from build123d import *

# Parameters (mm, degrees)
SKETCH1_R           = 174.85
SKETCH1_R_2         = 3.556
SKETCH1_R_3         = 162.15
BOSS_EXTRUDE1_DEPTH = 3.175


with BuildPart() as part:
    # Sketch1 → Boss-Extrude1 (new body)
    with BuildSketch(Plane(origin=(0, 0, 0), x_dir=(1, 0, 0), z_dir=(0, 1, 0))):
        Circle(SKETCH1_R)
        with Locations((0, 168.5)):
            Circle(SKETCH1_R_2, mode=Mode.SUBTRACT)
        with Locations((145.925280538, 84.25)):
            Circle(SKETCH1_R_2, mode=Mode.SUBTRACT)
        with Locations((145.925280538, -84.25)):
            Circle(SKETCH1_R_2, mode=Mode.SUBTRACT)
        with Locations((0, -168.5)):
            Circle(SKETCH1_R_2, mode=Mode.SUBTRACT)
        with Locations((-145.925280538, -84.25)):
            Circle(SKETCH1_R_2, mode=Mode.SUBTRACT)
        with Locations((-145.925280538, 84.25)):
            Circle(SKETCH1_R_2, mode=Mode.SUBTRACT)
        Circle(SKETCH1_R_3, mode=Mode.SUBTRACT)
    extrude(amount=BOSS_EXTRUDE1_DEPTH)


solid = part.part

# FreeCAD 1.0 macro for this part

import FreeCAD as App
import Part
import Sketcher

V = App.Vector
Q = App.Units.Quantity

doc = App.newDocument("Part")
params = doc.addObject("Spreadsheet::Sheet", "Params")
for row, (alias, value) in enumerate([
    ("sketch1_diameter", "349.7 mm"),
    ("sketch1_diameter2", "324.3 mm"),
    ("pad1_length", "3.175 mm"),
], start=1):
    params.set(f"A{row}", alias)
    params.set(f"B{row}", "=" + value)
    params.setAlias(f"B{row}", alias)

body = doc.addObject("PartDesign::Body", "Body")

# Sketch on XZ plane
sketch1 = doc.addObject("Sketcher::SketchObject", "Sketch")
body.addObject(sketch1)
sketch1.AttachmentSupport = (doc.XZ_Plane, [""])
sketch1.MapMode = "FlatFace"
sketch1.addGeometry([
    Part.Circle(V(0, 0, 0), V(0, 0, 1), 174.8),  # 0
    Part.Circle(V(-145.9, 84.2, 0), V(0, 0, 1), 3.6),  # 1
    Part.Circle(V(0, 168.5, 0), V(0, 0, 1), 3.6),  # 2
    Part.Circle(V(0, 0, 0), V(0, 0, 1), 162.2),  # 3
    Part.Circle(V(145.9, 84.2, 0), V(0, 0, 1), 3.6),  # 4
    Part.Circle(V(-145.9, -84.2, 0), V(0, 0, 1), 3.6),  # 5
    Part.Circle(V(145.9, -84.2, 0), V(0, 0, 1), 3.6),  # 6
    Part.Circle(V(0, -168.5, 0), V(0, 0, 1), 3.6),  # 7
], False)
sketch1.addConstraint([
    Sketcher.Constraint("Coincident", 0, 3, -1, 1),
    Sketcher.Constraint("Coincident", 3, 3, -1, 1),
    Sketcher.Constraint("Equal", 1, 2),
    Sketcher.Constraint("Equal", 2, 4),
    Sketcher.Constraint("Equal", 4, 5),
    Sketcher.Constraint("Equal", 5, 6),
    Sketcher.Constraint("Equal", 6, 7),
    Sketcher.Constraint("Symmetric", 4, 3, 5, 3, -1, 1),
    Sketcher.Constraint("Symmetric", 1, 3, 6, 3, -1, 1),
    Sketcher.Constraint("Symmetric", 2, 3, 7, 3, -1, 1),
    Sketcher.Constraint("Symmetric", 1, 3, 4, 3, -2),
    Sketcher.Constraint("PointOnObject", 2, 3, -2),
    Sketcher.Constraint("Diameter", 0, Q("349.7 mm")),
    Sketcher.Constraint("Diameter", 3, Q("324.3 mm")),
    Sketcher.Constraint("Diameter", 1, Q("7.112 mm")),
    Sketcher.Constraint("DistanceY", -1, 1, 2, 3, Q("168.5 mm")),
    Sketcher.Constraint("DistanceY", 5, 3, 1, 3, Q("168.5 mm")),
    Sketcher.Constraint("DistanceX", 1, 3, -1, 1, Q("145.925281 mm")),
])
sketch1.setExpression("Constraints[12]", "Params.sketch1_diameter")
sketch1.setExpression("Constraints[13]", "Params.sketch1_diameter2")
pad1 = doc.addObject("PartDesign::Pad", "Pad")
body.addObject(pad1)
pad1.Profile = sketch1
pad1.setExpression("Length", "Params.pad1_length")
pad1.Reversed = True

doc.recompute()
